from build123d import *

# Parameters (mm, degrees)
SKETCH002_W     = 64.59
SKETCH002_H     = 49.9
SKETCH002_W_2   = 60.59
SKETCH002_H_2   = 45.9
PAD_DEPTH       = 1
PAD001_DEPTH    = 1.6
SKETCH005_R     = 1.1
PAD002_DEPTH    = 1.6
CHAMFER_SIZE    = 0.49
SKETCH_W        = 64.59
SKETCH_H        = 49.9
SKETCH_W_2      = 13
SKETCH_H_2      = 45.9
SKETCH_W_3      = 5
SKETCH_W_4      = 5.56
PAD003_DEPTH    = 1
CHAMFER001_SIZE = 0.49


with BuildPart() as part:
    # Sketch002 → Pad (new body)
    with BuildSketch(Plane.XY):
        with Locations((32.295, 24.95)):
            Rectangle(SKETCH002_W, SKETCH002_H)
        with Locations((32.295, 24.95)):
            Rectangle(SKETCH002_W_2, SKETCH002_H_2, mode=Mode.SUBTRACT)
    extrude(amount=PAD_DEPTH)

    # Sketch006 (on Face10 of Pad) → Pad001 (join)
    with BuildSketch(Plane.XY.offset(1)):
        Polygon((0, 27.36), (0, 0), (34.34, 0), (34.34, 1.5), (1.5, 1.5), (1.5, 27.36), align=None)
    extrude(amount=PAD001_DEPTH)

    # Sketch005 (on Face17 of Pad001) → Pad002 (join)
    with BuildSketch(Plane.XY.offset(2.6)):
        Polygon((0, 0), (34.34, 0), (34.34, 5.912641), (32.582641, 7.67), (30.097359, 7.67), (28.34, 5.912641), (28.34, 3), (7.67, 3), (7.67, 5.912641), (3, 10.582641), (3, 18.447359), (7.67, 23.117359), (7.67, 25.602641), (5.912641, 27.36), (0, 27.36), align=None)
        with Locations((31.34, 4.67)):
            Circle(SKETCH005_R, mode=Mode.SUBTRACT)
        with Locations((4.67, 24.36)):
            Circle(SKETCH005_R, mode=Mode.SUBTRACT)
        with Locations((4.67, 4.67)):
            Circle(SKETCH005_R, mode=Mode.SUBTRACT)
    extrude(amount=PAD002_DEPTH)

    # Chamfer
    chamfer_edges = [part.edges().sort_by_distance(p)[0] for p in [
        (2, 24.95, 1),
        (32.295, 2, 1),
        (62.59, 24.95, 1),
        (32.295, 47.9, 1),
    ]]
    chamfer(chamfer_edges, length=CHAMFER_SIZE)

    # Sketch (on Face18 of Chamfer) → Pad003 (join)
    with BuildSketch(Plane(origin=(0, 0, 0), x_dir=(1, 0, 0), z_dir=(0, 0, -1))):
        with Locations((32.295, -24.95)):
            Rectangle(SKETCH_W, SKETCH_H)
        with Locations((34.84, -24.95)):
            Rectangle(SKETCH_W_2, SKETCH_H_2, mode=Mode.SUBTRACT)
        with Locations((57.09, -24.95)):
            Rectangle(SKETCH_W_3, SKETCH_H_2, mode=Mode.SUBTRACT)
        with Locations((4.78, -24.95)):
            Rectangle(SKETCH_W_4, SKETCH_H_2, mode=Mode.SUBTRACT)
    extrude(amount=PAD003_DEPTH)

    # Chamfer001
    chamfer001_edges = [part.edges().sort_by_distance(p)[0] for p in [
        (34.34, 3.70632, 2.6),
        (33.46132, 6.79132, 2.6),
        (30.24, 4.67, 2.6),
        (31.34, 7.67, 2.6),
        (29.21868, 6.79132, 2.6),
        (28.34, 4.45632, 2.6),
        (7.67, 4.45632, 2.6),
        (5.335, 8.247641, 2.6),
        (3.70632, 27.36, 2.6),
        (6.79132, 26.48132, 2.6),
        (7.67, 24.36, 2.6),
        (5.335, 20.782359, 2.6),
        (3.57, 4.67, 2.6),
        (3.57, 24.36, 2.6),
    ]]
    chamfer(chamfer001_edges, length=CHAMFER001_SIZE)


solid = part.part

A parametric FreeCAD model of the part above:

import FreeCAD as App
import Part
import Sketcher
Q = App.Units.Quantity


def edges_at(feature, points):
    """Names of the edges that pass closest to the given points."""
    edges = feature.Shape.Edges
    near = lambda p: min(range(len(edges)), key=lambda i: edges[i].distToShape(Part.Vertex(*p))[0])
    return sorted({f"Edge{near(p) + 1}" for p in points})

doc = App.newDocument("Part")
body = doc.addObject("PartDesign::Body", "Body")

# Sketch on XY plane
sketch1 = doc.addObject("Sketcher::SketchObject", "Sketch")
body.addObject(sketch1)
sketch1.AttachmentSupport = (doc.XY_Plane, [""])
sketch1.MapMode = "FlatFace"
sketch1.addGeometry([
    Part.LineSegment(App.Vector(0, 50, 0), App.Vector(0, 0, 0)),  # 0
    Part.LineSegment(App.Vector(0, 0, 0), App.Vector(65, 0, 0)),  # 1
    Part.LineSegment(App.Vector(65, 0, 0), App.Vector(65, 50, 0)),  # 2
    Part.LineSegment(App.Vector(65, 50, 0), App.Vector(0, 50, 0)),  # 3
    Part.LineSegment(App.Vector(63, 2, 0), App.Vector(2, 2, 0)),  # 4
    Part.LineSegment(App.Vector(2, 2, 0), App.Vector(2, 48, 0)),  # 5
    Part.LineSegment(App.Vector(2, 48, 0), App.Vector(63, 48, 0)),  # 6
    Part.LineSegment(App.Vector(63, 48, 0), App.Vector(63, 2, 0)),  # 7
], False)
sketch1.addConstraint([
    Sketcher.Constraint("Coincident", 0, 2, 1, 1),
    Sketcher.Constraint("Coincident", 1, 2, 2, 1),
    Sketcher.Constraint("Coincident", 2, 2, 3, 1),
    Sketcher.Constraint("Coincident", 3, 2, 0, 1),
    Sketcher.Constraint("Coincident", 4, 2, 5, 1),
    Sketcher.Constraint("Coincident", 5, 2, 6, 1),
    Sketcher.Constraint("Coincident", 6, 2, 7, 1),
    Sketcher.Constraint("Coincident", 7, 2, 4, 1),
    Sketcher.Constraint("Vertical", 0),
    Sketcher.Constraint("Horizontal", 1),
    Sketcher.Constraint("Vertical", 2),
    Sketcher.Constraint("Horizontal", 3),
    Sketcher.Constraint("Horizontal", 4),
    Sketcher.Constraint("Vertical", 5),
    Sketcher.Constraint("Horizontal", 6),
    Sketcher.Constraint("Vertical", 7),
    Sketcher.Constraint("Coincident", 0, 2, -1, 1),
    Sketcher.Constraint("DistanceY", 0, 2, 0, 1, Q("49.9 mm")),
    Sketcher.Constraint("DistanceY", 5, 1, 5, 2, Q("45.9 mm")),
    Sketcher.Constraint("DistanceX", -1, 1, 4, 2, Q("2 mm")),
    Sketcher.Constraint("DistanceY", -1, 1, 4, 2, Q("2 mm")),
    Sketcher.Constraint("DistanceX", 6, 2, 2, 2, Q("2 mm")),
    Sketcher.Constraint("DistanceX", 1, 1, 1, 2, Q("64.59 mm")),
])
pad1 = doc.addObject("PartDesign::Pad", "Pad")
body.addObject(pad1)
pad1.Profile = sketch1
pad1.Length = 1

# Sketch on XY plane
sketch2 = doc.addObject("Sketcher::SketchObject", "Sketch001")
body.addObject(sketch2)
sketch2.AttachmentSupport = (doc.XY_Plane, [""])
sketch2.MapMode = "FlatFace"
sketch2.AttachmentOffset = App.Placement(App.Vector(0, 0, 1), App.Rotation())
sketch2.addGeometry([
    Part.LineSegment(App.Vector(0, 27.4, 0), App.Vector(0, 0, 0)),  # 0
    Part.LineSegment(App.Vector(0, 0, 0), App.Vector(34.3, 0, 0)),  # 1
    Part.LineSegment(App.Vector(34.3, 0, 0), App.Vector(34.3, 1.5, 0)),  # 2
    Part.LineSegment(App.Vector(34.3, 1.5, 0), App.Vector(1.5, 1.5, 0)),  # 3
    Part.LineSegment(App.Vector(1.5, 1.5, 0), App.Vector(1.5, 27.4, 0)),  # 4
    Part.LineSegment(App.Vector(1.5, 27.4, 0), App.Vector(0, 27.4, 0)),  # 5
], False)
sketch2.addConstraint([
    Sketcher.Constraint("Coincident", 0, 2, 1, 1),
    Sketcher.Constraint("Coincident", 1, 2, 2, 1),
    Sketcher.Constraint("Coincident", 2, 2, 3, 1),
    Sketcher.Constraint("Coincident", 3, 2, 4, 1),
    Sketcher.Constraint("Coincident", 4, 2, 5, 1),
    Sketcher.Constraint("Coincident", 5, 2, 0, 1),
    Sketcher.Constraint("Vertical", 0),
    Sketcher.Constraint("Horizontal", 1),
    Sketcher.Constraint("Vertical", 2),
    Sketcher.Constraint("Horizontal", 3),
    Sketcher.Constraint("Vertical", 4),
    Sketcher.Constraint("Horizontal", 5),
    Sketcher.Constraint("Coincident", 0, 2, -1, 1),
    Sketcher.Constraint("Equal", 5, 2),
    Sketcher.Constraint("DistanceX", 5, 2, 5, 1, Q("1.5 mm")),
    Sketcher.Constraint("DistanceX", 1, 1, 1, 2, Q("34.34 mm")),
    Sketcher.Constraint("DistanceY", 0, 2, 0, 1, Q("27.36 mm")),
])
pad2 = doc.addObject("PartDesign::Pad", "Pad001")
body.addObject(pad2)
pad2.Profile = sketch2
pad2.Length = 1.6

# Sketch on XY plane
sketch3 = doc.addObject("Sketcher::SketchObject", "Sketch002")
body.addObject(sketch3)
sketch3.AttachmentSupport = (doc.XY_Plane, [""])
sketch3.MapMode = "FlatFace"
sketch3.AttachmentOffset = App.Placement(App.Vector(0, 0, 2.6), App.Rotation())
sketch3.addGeometry([
    Part.LineSegment(App.Vector(0, 0, 0), App.Vector(34.3, 0, 0)),  # 0
    Part.LineSegment(App.Vector(34.3, 0, 0), App.Vector(34.3, 5.9, 0)),  # 1
    Part.LineSegment(App.Vector(34.3, 5.9, 0), App.Vector(32.6, 7.7, 0)),  # 2
    Part.LineSegment(App.Vector(32.6, 7.7, 0), App.Vector(30.1, 7.7, 0)),  # 3
    Part.LineSegment(App.Vector(30.1, 7.7, 0), App.Vector(28.3, 5.9, 0)),  # 4
    Part.LineSegment(App.Vector(28.3, 5.9, 0), App.Vector(28.3, 3, 0)),  # 5
    Part.LineSegment(App.Vector(28.3, 3, 0), App.Vector(7.7, 3, 0)),  # 6
    Part.LineSegment(App.Vector(7.7, 3, 0), App.Vector(7.7, 5.9, 0)),  # 7
    Part.LineSegment(App.Vector(7.7, 5.9, 0), App.Vector(3, 10.6, 0)),  # 8
    Part.LineSegment(App.Vector(3, 10.6, 0), App.Vector(3, 18.4, 0)),  # 9
    Part.LineSegment(App.Vector(3, 18.4, 0), App.Vector(7.7, 23.1, 0)),  # 10
    Part.LineSegment(App.Vector(7.7, 23.1, 0), App.Vector(7.7, 25.6, 0)),  # 11
    Part.LineSegment(App.Vector(7.7, 25.6, 0), App.Vector(5.9, 27.4, 0)),  # 12
    Part.LineSegment(App.Vector(5.9, 27.4, 0), App.Vector(0, 27.4, 0)),  # 13
    Part.LineSegment(App.Vector(0, 27.4, 0), App.Vector(0, 0, 0)),  # 14
    Part.Circle(App.Vector(4.7, 4.7, 0), App.Vector(0, 0, 1), 1.1),  # 15
    Part.Circle(App.Vector(31.3, 4.7, 0), App.Vector(0, 0, 1), 1.1),  # 16
    Part.Circle(App.Vector(4.7, 24.4, 0), App.Vector(0, 0, 1), 1.1),  # 17
], False)
sketch3.addConstraint([
    Sketcher.Constraint("Coincident", 0, 2, 1, 1),
    Sketcher.Constraint("Coincident", 1, 2, 2, 1),
    Sketcher.Constraint("Coincident", 2, 2, 3, 1),
    Sketcher.Constraint("Coincident", 3, 2, 4, 1),
    Sketcher.Constraint("Coincident", 4, 2, 5, 1),
    Sketcher.Constraint("Coincident", 5, 2, 6, 1),
    Sketcher.Constraint("Coincident", 6, 2, 7, 1),
    Sketcher.Constraint("Coincident", 7, 2, 8, 1),
    Sketcher.Constraint("Coincident", 8, 2, 9, 1),
    Sketcher.Constraint("Coincident", 9, 2, 10, 1),
    Sketcher.Constraint("Coincident", 10, 2, 11, 1),
    Sketcher.Constraint("Coincident", 11, 2, 12, 1),
    Sketcher.Constraint("Coincident", 12, 2, 13, 1),
    Sketcher.Constraint("Coincident", 13, 2, 14, 1),
    Sketcher.Constraint("Coincident", 14, 2, 0, 1),
    Sketcher.Constraint("Horizontal", 0),
    Sketcher.Constraint("Vertical", 1),
    Sketcher.Constraint("Horizontal", 3),
    Sketcher.Constraint("Vertical", 5),
    Sketcher.Constraint("Horizontal", 6),
    Sketcher.Constraint("Vertical", 7),
    Sketcher.Constraint("Vertical", 9),
    Sketcher.Constraint("Vertical", 11),
    Sketcher.Constraint("Horizontal", 13),
    Sketcher.Constraint("Vertical", 14),
    Sketcher.Constraint("Coincident", 14, 2, -1, 1),
    Sketcher.Constraint("Equal", 15, 16),
    Sketcher.Constraint("Equal", 16, 17),
    Sketcher.Constraint("Perpendicular", 2, 4),
    Sketcher.Constraint("Perpendicular", 4, 8),
    Sketcher.Constraint("Perpendicular", 8, 10),
    Sketcher.Constraint("Perpendicular", 10, 12),
    Sketcher.Constraint("Horizontal", 15, 3, 16, 3),
    Sketcher.Constraint("Horizontal", 1, 2, 4, 2),
    Sketcher.Constraint("Horizontal", 4, 2, 7, 2),
    Sketcher.Constraint("Vertical", 15, 3, 17, 3),
    Sketcher.Constraint("Vertical", 7, 2, 10, 2),
    Sketcher.Constraint("Equal", 13, 1),
    Sketcher.Constraint("Equal", 3, 11),
    Sketcher.Constraint("Equal", 2, 4),
    Sketcher.Constraint("Equal", 4, 12),
    Sketcher.Constraint("Diameter", 15, Q("2.2 mm")),
    Sketcher.Constraint("DistanceY", -1, 1, 5, 2, Q("3 mm")),
    Sketcher.Constraint("DistanceX", -1, 1, 8, 2, Q("3 mm")),
    Sketcher.Constraint("DistanceX", 16, 3, 0, 2, Q("3 mm")),
    Sketcher.Constraint("DistanceY", 16, 3, 2, 2, Q("3 mm")),
    Sketcher.Constraint("DistanceX", 4, 2, 16, 3, Q("3 mm")),
    Sketcher.Constraint("DistanceX", 15, 3, 6, 2, Q("3 mm")),
    Sketcher.Constraint("DistanceY", 17, 3, 12, 2, Q("3 mm")),
    Sketcher.Constraint("DistanceX", 0, 1, 0, 2, Q("34.34 mm")),
    Sketcher.Constraint("DistanceX", 6, 2, 6, 1, Q("20.67 mm")),
    Sketcher.Constraint("DistanceY", 14, 2, 14, 1, Q("27.36 mm")),
    Sketcher.Constraint("DistanceX", 13, 2, 13, 1, Q("5.912641 mm")),
])
pad3 = doc.addObject("PartDesign::Pad", "Pad002")
body.addObject(pad3)
pad3.Profile = sketch3
pad3.Length = 1.6
doc.recompute()

chamfer = doc.addObject("PartDesign::Chamfer", "Chamfer")
body.addObject(chamfer)
chamfer.Base = (pad3, edges_at(pad3, [
    (2, 24.95, 1),
    (32.295, 2, 1),
    (62.59, 24.95, 1),
    (32.295, 47.9, 1),
]))
chamfer.Size = 0.49

# Sketch on XY plane
sketch4 = doc.addObject("Sketcher::SketchObject", "Sketch003")
body.addObject(sketch4)
sketch4.AttachmentSupport = (doc.XY_Plane, [""])
sketch4.MapMode = "FlatFace"
sketch4.addGeometry([
    Part.LineSegment(App.Vector(0, 0, 0), App.Vector(0, 50, 0)),  # 0
    Part.LineSegment(App.Vector(0, 50, 0), App.Vector(65, 50, 0)),  # 1
    Part.LineSegment(App.Vector(65, 50, 0), App.Vector(65, 0, 0)),  # 2
    Part.LineSegment(App.Vector(65, 0, 0), App.Vector(0, 0, 0)),  # 3
    Part.LineSegment(App.Vector(8, 48, 0), App.Vector(2, 48, 0)),  # 4
    Part.LineSegment(App.Vector(2, 48, 0), App.Vector(2, 2, 0)),  # 5
    Part.LineSegment(App.Vector(2, 2, 0), App.Vector(8, 2, 0)),  # 6
    Part.LineSegment(App.Vector(8, 2, 0), App.Vector(8, 48, 0)),  # 7
    Part.LineSegment(App.Vector(41, 48, 0), App.Vector(28, 48, 0)),  # 8
    Part.LineSegment(App.Vector(28, 48, 0), App.Vector(28, 2, 0)),  # 9
    Part.LineSegment(App.Vector(28, 2, 0), App.Vector(41, 2, 0)),  # 10
    Part.LineSegment(App.Vector(41, 2, 0), App.Vector(41, 48, 0)),  # 11
    Part.LineSegment(App.Vector(60, 48, 0), App.Vector(55, 48, 0)),  # 12
    Part.LineSegment(App.Vector(55, 48, 0), App.Vector(55, 2, 0)),  # 13
    Part.LineSegment(App.Vector(55, 2, 0), App.Vector(60, 2, 0)),  # 14
    Part.LineSegment(App.Vector(60, 2, 0), App.Vector(60, 48, 0)),  # 15
], False)
sketch4.addConstraint([
    Sketcher.Constraint("Coincident", 0, 2, 1, 1),
    Sketcher.Constraint("Coincident", 1, 2, 2, 1),
    Sketcher.Constraint("Coincident", 2, 2, 3, 1),
    Sketcher.Constraint("Coincident", 3, 2, 0, 1),
    Sketcher.Constraint("Coincident", 4, 2, 5, 1),
    Sketcher.Constraint("Coincident", 5, 2, 6, 1),
    Sketcher.Constraint("Coincident", 6, 2, 7, 1),
    Sketcher.Constraint("Coincident", 7, 2, 4, 1),
    Sketcher.Constraint("Coincident", 8, 2, 9, 1),
    Sketcher.Constraint("Coincident", 9, 2, 10, 1),
    Sketcher.Constraint("Coincident", 10, 2, 11, 1),
    Sketcher.Constraint("Coincident", 11, 2, 8, 1),
    Sketcher.Constraint("Coincident", 12, 2, 13, 1),
    Sketcher.Constraint("Coincident", 13, 2, 14, 1),
    Sketcher.Constraint("Coincident", 14, 2, 15, 1),
    Sketcher.Constraint("Coincident", 15, 2, 12, 1),
    Sketcher.Constraint("Vertical", 0),
    Sketcher.Constraint("Horizontal", 1),
    Sketcher.Constraint("Vertical", 2),
    Sketcher.Constraint("Horizontal", 3),
    Sketcher.Constraint("Horizontal", 4),
    Sketcher.Constraint("Vertical", 5),
    Sketcher.Constraint("Horizontal", 6),
    Sketcher.Constraint("Vertical", 7),
    Sketcher.Constraint("Horizontal", 8),
    Sketcher.Constraint("Vertical", 9),
    Sketcher.Constraint("Horizontal", 10),
    Sketcher.Constraint("Vertical", 11),
    Sketcher.Constraint("Horizontal", 12),
    Sketcher.Constraint("Vertical", 13),
    Sketcher.Constraint("Horizontal", 14),
    Sketcher.Constraint("Vertical", 15),
    Sketcher.Constraint("Coincident", 3, 2, -1, 1),
    Sketcher.Constraint("Horizontal", 7, 2, 8, 2),
    Sketcher.Constraint("Horizontal", 6, 2, 9, 2),
    Sketcher.Constraint("Horizontal", 11, 2, 12, 2),
    Sketcher.Constraint("Horizontal", 10, 2, 13, 2),
    Sketcher.Constraint("DistanceX", 8, 2, 8, 1, Q("13 mm")),
    Sketcher.Constraint("DistanceX", 12, 2, 12, 1, Q("5 mm")),
    Sketcher.Constraint("DistanceY", 0, 1, 0, 2, Q("49.9 mm")),
    Sketcher.Constraint("DistanceY", 5, 2, 5, 1, Q("45.9 mm")),
    Sketcher.Constraint("DistanceX", -1, 1, 4, 2, Q("2 mm")),
    Sketcher.Constraint("DistanceY", -1, 1, 5, 2, Q("2 mm")),
    Sketcher.Constraint("DistanceX", 12, 2, 1, 2, Q("10 mm")),
    Sketcher.Constraint("DistanceX", 1, 1, 1, 2, Q("64.59 mm")),
    Sketcher.Constraint("DistanceX", 4, 2, 4, 1, Q("5.56 mm")),
    Sketcher.Constraint("DistanceX", -1, 1, 8, 2, Q("28.34 mm")),
])
pad4 = doc.addObject("PartDesign::Pad", "Pad003")
body.addObject(pad4)
pad4.Profile = sketch4
pad4.Length = 1
pad4.Reversed = True
doc.recompute()

chamfer2 = doc.addObject("PartDesign::Chamfer", "Chamfer001")
body.addObject(chamfer2)
chamfer2.Base = (pad4, edges_at(pad4, [
    (34.34, 3.706, 2.6),
    (33.461, 6.791, 2.6),
    (30.24, 4.67, 2.6),
    (31.34, 7.67, 2.6),
    (29.219, 6.791, 2.6),
    (28.34, 4.456, 2.6),
    (7.67, 4.456, 2.6),
    (5.335, 8.248, 2.6),
    (3.706, 27.36, 2.6),
    (6.791, 26.481, 2.6),
    (7.67, 24.36, 2.6),
    (5.335, 20.782, 2.6),
    (3.57, 4.67, 2.6),
    (3.57, 24.36, 2.6),
]))
chamfer2.Size = 0.49

doc.recompute()
